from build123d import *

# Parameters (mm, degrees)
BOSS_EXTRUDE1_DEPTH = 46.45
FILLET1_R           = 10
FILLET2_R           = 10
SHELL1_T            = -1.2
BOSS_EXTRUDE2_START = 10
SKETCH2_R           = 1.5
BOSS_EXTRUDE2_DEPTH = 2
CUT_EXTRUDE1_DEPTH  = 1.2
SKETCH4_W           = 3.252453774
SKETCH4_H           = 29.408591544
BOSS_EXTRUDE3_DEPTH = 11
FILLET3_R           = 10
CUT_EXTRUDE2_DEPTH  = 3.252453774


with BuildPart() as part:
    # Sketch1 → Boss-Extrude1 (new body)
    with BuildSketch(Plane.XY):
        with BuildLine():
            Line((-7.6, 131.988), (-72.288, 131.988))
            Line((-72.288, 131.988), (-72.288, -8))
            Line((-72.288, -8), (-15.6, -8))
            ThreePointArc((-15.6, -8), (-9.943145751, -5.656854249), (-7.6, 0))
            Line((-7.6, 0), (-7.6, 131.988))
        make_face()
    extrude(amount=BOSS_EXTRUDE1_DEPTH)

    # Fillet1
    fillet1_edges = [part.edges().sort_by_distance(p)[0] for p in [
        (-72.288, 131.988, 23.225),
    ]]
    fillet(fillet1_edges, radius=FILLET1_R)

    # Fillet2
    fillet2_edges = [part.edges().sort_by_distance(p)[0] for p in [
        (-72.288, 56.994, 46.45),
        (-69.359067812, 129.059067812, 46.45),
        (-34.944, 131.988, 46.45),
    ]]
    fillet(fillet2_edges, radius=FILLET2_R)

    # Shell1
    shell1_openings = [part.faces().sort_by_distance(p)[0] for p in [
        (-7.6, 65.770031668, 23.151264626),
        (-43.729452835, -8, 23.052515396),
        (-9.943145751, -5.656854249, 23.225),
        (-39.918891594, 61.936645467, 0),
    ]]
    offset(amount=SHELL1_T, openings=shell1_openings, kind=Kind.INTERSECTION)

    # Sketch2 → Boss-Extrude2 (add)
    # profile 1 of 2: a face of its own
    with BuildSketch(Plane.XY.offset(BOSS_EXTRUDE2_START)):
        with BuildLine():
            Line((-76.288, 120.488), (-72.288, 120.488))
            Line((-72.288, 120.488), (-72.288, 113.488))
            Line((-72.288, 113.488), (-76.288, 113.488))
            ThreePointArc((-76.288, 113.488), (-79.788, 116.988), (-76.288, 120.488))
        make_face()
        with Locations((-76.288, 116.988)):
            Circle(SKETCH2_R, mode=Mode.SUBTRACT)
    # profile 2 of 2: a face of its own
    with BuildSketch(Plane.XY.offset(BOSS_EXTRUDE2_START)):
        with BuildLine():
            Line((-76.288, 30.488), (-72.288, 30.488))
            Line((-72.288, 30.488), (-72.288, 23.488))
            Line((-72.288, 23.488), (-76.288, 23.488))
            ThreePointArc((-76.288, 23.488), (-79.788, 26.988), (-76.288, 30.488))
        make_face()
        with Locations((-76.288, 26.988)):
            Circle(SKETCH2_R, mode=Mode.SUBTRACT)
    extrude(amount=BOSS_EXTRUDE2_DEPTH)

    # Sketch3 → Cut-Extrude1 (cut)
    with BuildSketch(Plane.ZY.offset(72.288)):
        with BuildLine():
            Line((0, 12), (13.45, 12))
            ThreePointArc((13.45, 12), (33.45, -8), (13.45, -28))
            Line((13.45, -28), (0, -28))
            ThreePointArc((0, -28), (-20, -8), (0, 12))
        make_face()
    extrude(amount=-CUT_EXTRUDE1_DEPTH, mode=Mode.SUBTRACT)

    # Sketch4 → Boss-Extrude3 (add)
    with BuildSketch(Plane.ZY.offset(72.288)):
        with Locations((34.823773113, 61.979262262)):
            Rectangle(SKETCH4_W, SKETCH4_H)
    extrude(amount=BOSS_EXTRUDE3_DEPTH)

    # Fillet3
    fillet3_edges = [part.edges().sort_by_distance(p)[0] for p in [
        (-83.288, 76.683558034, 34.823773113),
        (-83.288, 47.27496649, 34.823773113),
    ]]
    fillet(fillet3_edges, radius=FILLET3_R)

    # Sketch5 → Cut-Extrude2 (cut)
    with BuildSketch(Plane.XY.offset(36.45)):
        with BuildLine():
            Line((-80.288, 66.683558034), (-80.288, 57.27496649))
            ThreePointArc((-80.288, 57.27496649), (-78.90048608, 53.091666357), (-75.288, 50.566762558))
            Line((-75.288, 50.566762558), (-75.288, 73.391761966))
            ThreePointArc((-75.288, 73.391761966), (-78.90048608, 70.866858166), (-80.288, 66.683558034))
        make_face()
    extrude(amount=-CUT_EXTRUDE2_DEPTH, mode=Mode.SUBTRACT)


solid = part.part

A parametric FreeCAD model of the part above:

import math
import FreeCAD as App
import Part
import Sketcher
from FreeCAD import Vector
Q = App.Units.Quantity


def edges_at(feature, points):
    """Names of the edges that pass closest to the given points."""
    edges = feature.Shape.Edges
    near = lambda p: min(range(len(edges)), key=lambda i: edges[i].distToShape(Part.Vertex(*p))[0])
    return sorted({f"Edge{near(p) + 1}" for p in points})


def faces_at(feature, points):
    """Names of the faces that lie closest to the given points."""
    faces = feature.Shape.Faces
    near = lambda p: min(range(len(faces)), key=lambda i: faces[i].distToShape(Part.Vertex(*p))[0])
    return sorted({f"Face{near(p) + 1}" for p in points})


def add_polygon(sketch, points):
    """Adds a closed chain of lines whose ends are joined by coincident constraints."""
    first, n = sketch.GeometryCount, len(points)
    for a, b in zip(points, points[1:] + points[:1]):
        sketch.addGeometry(Part.LineSegment(App.Vector(*a, 0), App.Vector(*b, 0)), False)
    for i in range(n):
        sketch.addConstraint(Sketcher.Constraint("Coincident", first + i, 2, first + (i + 1) % n, 1))

doc = App.newDocument("Part")
params = doc.addObject("Spreadsheet::Sheet", "Params")
for row, (alias, value) in enumerate([
    ("sketch1_radius", "8 mm"),
    ("pad1_length", "46.45 mm"),
    ("fillet_radius", "10 mm"),
    ("fillet2_radius", "10 mm"),
    ("thickness_wall", "1.2 mm"),
    ("sketch2_diameter", "3 mm"),
    ("sketch2_radius", "3.5 mm"),
    ("sketch2_width", "4 mm"),
    ("pad2_length", "2 mm"),
    ("sketch3_radius", "20 mm"),
    ("sketch3_height", "13.45 mm"),
    ("pocket1_length", "1.2 mm"),
    ("pad3_length", "11 mm"),
    ("fillet3_radius", "10 mm"),
    ("sketch5_radius", "7 mm"),
    ("sketch5_width", "2 mm"),
    ("pocket2_length", "3.252454 mm"),
], start=1):
    params.set(f"A{row}", alias)
    params.set(f"B{row}", "=" + value)
    params.setAlias(f"B{row}", alias)

body = doc.addObject("PartDesign::Body", "Body")

sketch1 = body.newObject("Sketcher::SketchObject", "Sketch")
sketch1.AttachmentSupport = (doc.getObject("XY_Plane"), [""])
sketch1.MapMode = "FlatFace"
sketch1.addGeometry(Part.LineSegment(Vector(-8, 132, 0), Vector(-72, 132, 0)), False)
sketch1.addGeometry(Part.LineSegment(Vector(-72, 132, 0), Vector(-72, -8, 0)), False)
sketch1.addGeometry(Part.LineSegment(Vector(-72, -8, 0), Vector(-16, -8, 0)), False)
sketch1.addGeometry(Part.ArcOfCircle(Part.Circle(Vector(-16, 0, 0), Vector(0, 0, 1), 8), math.radians(-90), math.radians(0)), False)
sketch1.addGeometry(Part.LineSegment(Vector(-8, 0, 0), Vector(-8, 132, 0)), False)
sketch1.addConstraint(Sketcher.Constraint("Coincident", 0, 2, 1, 1))
sketch1.addConstraint(Sketcher.Constraint("Coincident", 1, 2, 2, 1))
sketch1.addConstraint(Sketcher.Constraint("Tangent", 2, 2, 3, 1))
sketch1.addConstraint(Sketcher.Constraint("Tangent", 3, 2, 4, 1))
sketch1.addConstraint(Sketcher.Constraint("Coincident", 4, 2, 0, 1))
sketch1.addConstraint(Sketcher.Constraint("Horizontal", 0))
sketch1.addConstraint(Sketcher.Constraint("Vertical", 1))
sketch1.addConstraint(Sketcher.Constraint("Horizontal", 2))
sketch1.addConstraint(Sketcher.Constraint("Vertical", 4))
sketch1.addConstraint(Sketcher.Constraint("PointOnObject", 3, 3, -1))
sketch1.addConstraint(Sketcher.Constraint("Radius", 3, Q("8 mm")))
sketch1.addConstraint(Sketcher.Constraint("DistanceX", 3, 3, -1, 1, Q("15.6 mm")))
sketch1.addConstraint(Sketcher.Constraint("DistanceX", 0, 2, 0, 1, Q("64.688 mm")))
sketch1.addConstraint(Sketcher.Constraint("DistanceY", 1, 2, 1, 1, Q("139.988 mm")))
sketch1.setExpression("Constraints[10]", "Params.sketch1_radius")
pad1 = body.newObject("PartDesign::Pad", "Pad")
pad1.Profile = sketch1
pad1.setExpression("Length", "Params.pad1_length")
doc.recompute()

fillet = body.newObject("PartDesign::Fillet", "Fillet")
fillet.Base = (pad1, edges_at(pad1, [(-72.288, 131.988, 23.225)]))
fillet.setExpression("Radius", "Params.fillet_radius")
doc.recompute()

fillet2 = body.newObject("PartDesign::Fillet", "Fillet001")
fillet2.Base = (fillet, edges_at(fillet, [(-72.288, 56.994, 46.45), (-69.359, 129.059, 46.45), (-34.944, 131.988, 46.45)]))
fillet2.setExpression("Radius", "Params.fillet2_radius")
doc.recompute()

thickness = body.newObject("PartDesign::Thickness", "Thickness")
thickness.Base = (fillet2, faces_at(fillet2, [
    (-7.6, 65.994, 23.225),
    (-43.944, -8, 23.225),
    (-9.943, -5.657, 23.225),
    (-39.944, 61.994, 0),
]))
thickness.setExpression("Value", "Params.thickness_wall")
thickness.Reversed = True
thickness.Join = "Intersection"

sketch2 = body.newObject("Sketcher::SketchObject", "Sketch001")
sketch2.AttachmentSupport = (doc.getObject("XY_Plane"), [""])
sketch2.MapMode = "FlatFace"
sketch2.AttachmentOffset = App.Placement(Vector(0, 0, 10), App.Rotation())
sketch2.addGeometry(Part.LineSegment(Vector(-72.3, 120.5, 0), Vector(-76.3, 120.5, 0)), False)
sketch2.addGeometry(Part.ArcOfCircle(Part.Circle(Vector(-76.3, 117, 0), Vector(0, 0, 1), 3.5), math.radians(90), math.radians(270)), False)
sketch2.addGeometry(Part.LineSegment(Vector(-76.3, 113.5, 0), Vector(-72.3, 113.5, 0)), False)
sketch2.addGeometry(Part.LineSegment(Vector(-72.3, 113.5, 0), Vector(-72.3, 120.5, 0)), False)
sketch2.addGeometry(Part.Circle(Vector(-76.3, 117, 0), Vector(0, 0, 1), 1.5), False)
sketch2.addGeometry(Part.LineSegment(Vector(-72.3, 30.5, 0), Vector(-76.3, 30.5, 0)), False)
sketch2.addGeometry(Part.ArcOfCircle(Part.Circle(Vector(-76.3, 27, 0), Vector(0, 0, 1), 3.5), math.radians(90), math.radians(270)), False)
sketch2.addGeometry(Part.LineSegment(Vector(-76.3, 23.5, 0), Vector(-72.3, 23.5, 0)), False)
sketch2.addGeometry(Part.LineSegment(Vector(-72.3, 23.5, 0), Vector(-72.3, 30.5, 0)), False)
sketch2.addGeometry(Part.Circle(Vector(-76.3, 27, 0), Vector(0, 0, 1), 1.5), False)
sketch2.addConstraint(Sketcher.Constraint("Tangent", 0, 2, 1, 1))
sketch2.addConstraint(Sketcher.Constraint("Tangent", 1, 2, 2, 1))
sketch2.addConstraint(Sketcher.Constraint("Coincident", 2, 2, 3, 1))
sketch2.addConstraint(Sketcher.Constraint("Coincident", 3, 2, 0, 1))
sketch2.addConstraint(Sketcher.Constraint("Tangent", 5, 2, 6, 1))
sketch2.addConstraint(Sketcher.Constraint("Tangent", 6, 2, 7, 1))
sketch2.addConstraint(Sketcher.Constraint("Coincident", 7, 2, 8, 1))
sketch2.addConstraint(Sketcher.Constraint("Coincident", 8, 2, 5, 1))
sketch2.addConstraint(Sketcher.Constraint("Horizontal", 0))
sketch2.addConstraint(Sketcher.Constraint("Horizontal", 2))
sketch2.addConstraint(Sketcher.Constraint("Vertical", 3))
sketch2.addConstraint(Sketcher.Constraint("Horizontal", 5))
sketch2.addConstraint(Sketcher.Constraint("Horizontal", 7))
sketch2.addConstraint(Sketcher.Constraint("Vertical", 8))
sketch2.addConstraint(Sketcher.Constraint("Coincident", 4, 3, 1, 3))
sketch2.addConstraint(Sketcher.Constraint("Coincident", 9, 3, 6, 3))
sketch2.addConstraint(Sketcher.Constraint("Equal", 1, 6))
sketch2.addConstraint(Sketcher.Constraint("Equal", 4, 9))
sketch2.addConstraint(Sketcher.Constraint("Vertical", 4, 3, 6, 3))
sketch2.addConstraint(Sketcher.Constraint("Vertical", 3, 2, 7, 2))
sketch2.addConstraint(Sketcher.Constraint("Diameter", 4, Q("3 mm")))
sketch2.addConstraint(Sketcher.Constraint("Radius", 1, Q("3.5 mm")))
sketch2.addConstraint(Sketcher.Constraint("DistanceX", 0, 2, 0, 1, Q("4 mm")))
sketch2.addConstraint(Sketcher.Constraint("DistanceY", 6, 3, 1, 3, Q("90 mm")))
sketch2.addConstraint(Sketcher.Constraint("DistanceX", 1, 3, -1, 1, Q("76.288 mm")))
sketch2.addConstraint(Sketcher.Constraint("DistanceY", -1, 1, 1, 3, Q("116.988 mm")))
sketch2.setExpression("Constraints[20]", "Params.sketch2_diameter")
sketch2.setExpression("Constraints[21]", "Params.sketch2_radius")
sketch2.setExpression("Constraints[22]", "Params.sketch2_width")
pad2 = body.newObject("PartDesign::Pad", "Pad001")
pad2.Profile = sketch2
pad2.setExpression("Length", "Params.pad2_length")

sketch3 = body.newObject("Sketcher::SketchObject", "Sketch002")
sketch3.AttachmentSupport = (doc.getObject("YZ_Plane"), [""])
sketch3.MapMode = "FlatFace"
sketch3.AttachmentOffset = App.Placement(Vector(0, 0, -72.288), App.Rotation())
sketch3.addGeometry(Part.LineSegment(Vector(12, 13, 0), Vector(12, 0, 0)), False)
sketch3.addGeometry(Part.ArcOfCircle(Part.Circle(Vector(-8, 0, 0), Vector(0, 0, 1), 20), math.radians(180), math.radians(360)), False)
sketch3.addGeometry(Part.LineSegment(Vector(-28, 0, 0), Vector(-28, 13, 0)), False)
sketch3.addGeometry(Part.ArcOfCircle(Part.Circle(Vector(-8, 13, 0), Vector(0, 0, 1), 20), math.radians(0), math.radians(180)), False)
sketch3.addConstraint(Sketcher.Constraint("Tangent", 0, 2, 1, 2))
sketch3.addConstraint(Sketcher.Constraint("Tangent", 1, 1, 2, 1))
sketch3.addConstraint(Sketcher.Constraint("Tangent", 2, 2, 3, 2))
sketch3.addConstraint(Sketcher.Constraint("Tangent", 3, 1, 0, 1))
sketch3.addConstraint(Sketcher.Constraint("Vertical", 0))
sketch3.addConstraint(Sketcher.Constraint("Vertical", 2))
sketch3.addConstraint(Sketcher.Constraint("PointOnObject", 1, 3, -1))
sketch3.addConstraint(Sketcher.Constraint("Radius", 1, Q("20 mm")))
sketch3.addConstraint(Sketcher.Constraint("DistanceX", 1, 3, -1, 1, Q("8 mm")))
sketch3.addConstraint(Sketcher.Constraint("DistanceY", 0, 2, 0, 1, Q("13.45 mm")))
sketch3.setExpression("Constraints[7]", "Params.sketch3_radius")
sketch3.setExpression("Constraints[9]", "Params.sketch3_height")
pocket1 = body.newObject("PartDesign::Pocket", "Pocket")
pocket1.Profile = sketch3
pocket1.setExpression("Length", "Params.pocket1_length")
pocket1.Reversed = True

sketch4 = body.newObject("Sketcher::SketchObject", "Sketch003")
sketch4.AttachmentSupport = (doc.getObject("YZ_Plane"), [""])
sketch4.MapMode = "FlatFace"
sketch4.AttachmentOffset = App.Placement(Vector(0, 0, -72.288), App.Rotation())
add_polygon(sketch4, [(76.7, 33.2), (47.3, 33.2), (47.3, 36.5), (76.7, 36.5)])
sketch4.addConstraint(Sketcher.Constraint("Horizontal", 0))
sketch4.addConstraint(Sketcher.Constraint("Vertical", 1))
sketch4.addConstraint(Sketcher.Constraint("Horizontal", 2))
sketch4.addConstraint(Sketcher.Constraint("Vertical", 3))
sketch4.addConstraint(Sketcher.Constraint("DistanceY", -1, 1, 1, 2, Q("36.45 mm")))
sketch4.addConstraint(Sketcher.Constraint("DistanceX", 0, 2, 0, 1, Q("29.408592 mm")))
sketch4.addConstraint(Sketcher.Constraint("DistanceY", 1, 1, 1, 2, Q("3.252454 mm")))
sketch4.addConstraint(Sketcher.Constraint("DistanceX", -1, 1, 2, 2, Q("76.683558 mm")))
pad3 = body.newObject("PartDesign::Pad", "Pad002")
pad3.Profile = sketch4
pad3.setExpression("Length", "Params.pad3_length")
pad3.Reversed = True
doc.recompute()

fillet3 = body.newObject("PartDesign::Fillet", "Fillet002")
fillet3.Base = (pad3, edges_at(pad3, [(-83.288, 76.684, 34.824), (-83.288, 47.275, 34.824)]))
fillet3.setExpression("Radius", "Params.fillet3_radius")

sketch5 = body.newObject("Sketcher::SketchObject", "Sketch004")
sketch5.AttachmentSupport = (doc.getObject("XY_Plane"), [""])
sketch5.MapMode = "FlatFace"
sketch5.AttachmentOffset = App.Placement(Vector(0, 0, 36.45), App.Rotation())
sketch5.addGeometry(Part.LineSegment(Vector(-80, 67, 0), Vector(-80, 57, 0)), False)
sketch5.addGeometry(Part.ArcOfCircle(Part.Circle(Vector(-73, 57, 0), Vector(0, 0, 1), 7), math.radians(180), math.radians(253)), False)
sketch5.addGeometry(Part.LineSegment(Vector(-75, 51, 0), Vector(-75, 73, 0)), False)
sketch5.addGeometry(Part.ArcOfCircle(Part.Circle(Vector(-73, 67, 0), Vector(0, 0, 1), 7), math.radians(107), math.radians(180)), False)
sketch5.addConstraint(Sketcher.Constraint("Tangent", 0, 2, 1, 1))
sketch5.addConstraint(Sketcher.Constraint("Coincident", 1, 2, 2, 1))
sketch5.addConstraint(Sketcher.Constraint("Coincident", 2, 2, 3, 1))
sketch5.addConstraint(Sketcher.Constraint("Tangent", 3, 2, 0, 1))
sketch5.addConstraint(Sketcher.Constraint("Vertical", 0))
sketch5.addConstraint(Sketcher.Constraint("Vertical", 2))
sketch5.addConstraint(Sketcher.Constraint("Equal", 1, 3))
sketch5.addConstraint(Sketcher.Constraint("Radius", 1, Q("7 mm")))
sketch5.addConstraint(Sketcher.Constraint("DistanceX", 1, 2, 1, 3, Q("2 mm")))
sketch5.addConstraint(Sketcher.Constraint("DistanceY", 2, 1, 2, 2, Q("22.824999 mm")))
sketch5.addConstraint(Sketcher.Constraint("DistanceX", 1, 3, -1, 1, Q("73.288 mm")))
sketch5.addConstraint(Sketcher.Constraint("DistanceY", -1, 1, 3, 3, Q("66.683558 mm")))
sketch5.setExpression("Constraints[7]", "Params.sketch5_radius")
sketch5.setExpression("Constraints[8]", "Params.sketch5_width")
pocket2 = body.newObject("PartDesign::Pocket", "Pocket001")
pocket2.Profile = sketch5
pocket2.setExpression("Length", "Params.pocket2_length")

doc.recompute()
